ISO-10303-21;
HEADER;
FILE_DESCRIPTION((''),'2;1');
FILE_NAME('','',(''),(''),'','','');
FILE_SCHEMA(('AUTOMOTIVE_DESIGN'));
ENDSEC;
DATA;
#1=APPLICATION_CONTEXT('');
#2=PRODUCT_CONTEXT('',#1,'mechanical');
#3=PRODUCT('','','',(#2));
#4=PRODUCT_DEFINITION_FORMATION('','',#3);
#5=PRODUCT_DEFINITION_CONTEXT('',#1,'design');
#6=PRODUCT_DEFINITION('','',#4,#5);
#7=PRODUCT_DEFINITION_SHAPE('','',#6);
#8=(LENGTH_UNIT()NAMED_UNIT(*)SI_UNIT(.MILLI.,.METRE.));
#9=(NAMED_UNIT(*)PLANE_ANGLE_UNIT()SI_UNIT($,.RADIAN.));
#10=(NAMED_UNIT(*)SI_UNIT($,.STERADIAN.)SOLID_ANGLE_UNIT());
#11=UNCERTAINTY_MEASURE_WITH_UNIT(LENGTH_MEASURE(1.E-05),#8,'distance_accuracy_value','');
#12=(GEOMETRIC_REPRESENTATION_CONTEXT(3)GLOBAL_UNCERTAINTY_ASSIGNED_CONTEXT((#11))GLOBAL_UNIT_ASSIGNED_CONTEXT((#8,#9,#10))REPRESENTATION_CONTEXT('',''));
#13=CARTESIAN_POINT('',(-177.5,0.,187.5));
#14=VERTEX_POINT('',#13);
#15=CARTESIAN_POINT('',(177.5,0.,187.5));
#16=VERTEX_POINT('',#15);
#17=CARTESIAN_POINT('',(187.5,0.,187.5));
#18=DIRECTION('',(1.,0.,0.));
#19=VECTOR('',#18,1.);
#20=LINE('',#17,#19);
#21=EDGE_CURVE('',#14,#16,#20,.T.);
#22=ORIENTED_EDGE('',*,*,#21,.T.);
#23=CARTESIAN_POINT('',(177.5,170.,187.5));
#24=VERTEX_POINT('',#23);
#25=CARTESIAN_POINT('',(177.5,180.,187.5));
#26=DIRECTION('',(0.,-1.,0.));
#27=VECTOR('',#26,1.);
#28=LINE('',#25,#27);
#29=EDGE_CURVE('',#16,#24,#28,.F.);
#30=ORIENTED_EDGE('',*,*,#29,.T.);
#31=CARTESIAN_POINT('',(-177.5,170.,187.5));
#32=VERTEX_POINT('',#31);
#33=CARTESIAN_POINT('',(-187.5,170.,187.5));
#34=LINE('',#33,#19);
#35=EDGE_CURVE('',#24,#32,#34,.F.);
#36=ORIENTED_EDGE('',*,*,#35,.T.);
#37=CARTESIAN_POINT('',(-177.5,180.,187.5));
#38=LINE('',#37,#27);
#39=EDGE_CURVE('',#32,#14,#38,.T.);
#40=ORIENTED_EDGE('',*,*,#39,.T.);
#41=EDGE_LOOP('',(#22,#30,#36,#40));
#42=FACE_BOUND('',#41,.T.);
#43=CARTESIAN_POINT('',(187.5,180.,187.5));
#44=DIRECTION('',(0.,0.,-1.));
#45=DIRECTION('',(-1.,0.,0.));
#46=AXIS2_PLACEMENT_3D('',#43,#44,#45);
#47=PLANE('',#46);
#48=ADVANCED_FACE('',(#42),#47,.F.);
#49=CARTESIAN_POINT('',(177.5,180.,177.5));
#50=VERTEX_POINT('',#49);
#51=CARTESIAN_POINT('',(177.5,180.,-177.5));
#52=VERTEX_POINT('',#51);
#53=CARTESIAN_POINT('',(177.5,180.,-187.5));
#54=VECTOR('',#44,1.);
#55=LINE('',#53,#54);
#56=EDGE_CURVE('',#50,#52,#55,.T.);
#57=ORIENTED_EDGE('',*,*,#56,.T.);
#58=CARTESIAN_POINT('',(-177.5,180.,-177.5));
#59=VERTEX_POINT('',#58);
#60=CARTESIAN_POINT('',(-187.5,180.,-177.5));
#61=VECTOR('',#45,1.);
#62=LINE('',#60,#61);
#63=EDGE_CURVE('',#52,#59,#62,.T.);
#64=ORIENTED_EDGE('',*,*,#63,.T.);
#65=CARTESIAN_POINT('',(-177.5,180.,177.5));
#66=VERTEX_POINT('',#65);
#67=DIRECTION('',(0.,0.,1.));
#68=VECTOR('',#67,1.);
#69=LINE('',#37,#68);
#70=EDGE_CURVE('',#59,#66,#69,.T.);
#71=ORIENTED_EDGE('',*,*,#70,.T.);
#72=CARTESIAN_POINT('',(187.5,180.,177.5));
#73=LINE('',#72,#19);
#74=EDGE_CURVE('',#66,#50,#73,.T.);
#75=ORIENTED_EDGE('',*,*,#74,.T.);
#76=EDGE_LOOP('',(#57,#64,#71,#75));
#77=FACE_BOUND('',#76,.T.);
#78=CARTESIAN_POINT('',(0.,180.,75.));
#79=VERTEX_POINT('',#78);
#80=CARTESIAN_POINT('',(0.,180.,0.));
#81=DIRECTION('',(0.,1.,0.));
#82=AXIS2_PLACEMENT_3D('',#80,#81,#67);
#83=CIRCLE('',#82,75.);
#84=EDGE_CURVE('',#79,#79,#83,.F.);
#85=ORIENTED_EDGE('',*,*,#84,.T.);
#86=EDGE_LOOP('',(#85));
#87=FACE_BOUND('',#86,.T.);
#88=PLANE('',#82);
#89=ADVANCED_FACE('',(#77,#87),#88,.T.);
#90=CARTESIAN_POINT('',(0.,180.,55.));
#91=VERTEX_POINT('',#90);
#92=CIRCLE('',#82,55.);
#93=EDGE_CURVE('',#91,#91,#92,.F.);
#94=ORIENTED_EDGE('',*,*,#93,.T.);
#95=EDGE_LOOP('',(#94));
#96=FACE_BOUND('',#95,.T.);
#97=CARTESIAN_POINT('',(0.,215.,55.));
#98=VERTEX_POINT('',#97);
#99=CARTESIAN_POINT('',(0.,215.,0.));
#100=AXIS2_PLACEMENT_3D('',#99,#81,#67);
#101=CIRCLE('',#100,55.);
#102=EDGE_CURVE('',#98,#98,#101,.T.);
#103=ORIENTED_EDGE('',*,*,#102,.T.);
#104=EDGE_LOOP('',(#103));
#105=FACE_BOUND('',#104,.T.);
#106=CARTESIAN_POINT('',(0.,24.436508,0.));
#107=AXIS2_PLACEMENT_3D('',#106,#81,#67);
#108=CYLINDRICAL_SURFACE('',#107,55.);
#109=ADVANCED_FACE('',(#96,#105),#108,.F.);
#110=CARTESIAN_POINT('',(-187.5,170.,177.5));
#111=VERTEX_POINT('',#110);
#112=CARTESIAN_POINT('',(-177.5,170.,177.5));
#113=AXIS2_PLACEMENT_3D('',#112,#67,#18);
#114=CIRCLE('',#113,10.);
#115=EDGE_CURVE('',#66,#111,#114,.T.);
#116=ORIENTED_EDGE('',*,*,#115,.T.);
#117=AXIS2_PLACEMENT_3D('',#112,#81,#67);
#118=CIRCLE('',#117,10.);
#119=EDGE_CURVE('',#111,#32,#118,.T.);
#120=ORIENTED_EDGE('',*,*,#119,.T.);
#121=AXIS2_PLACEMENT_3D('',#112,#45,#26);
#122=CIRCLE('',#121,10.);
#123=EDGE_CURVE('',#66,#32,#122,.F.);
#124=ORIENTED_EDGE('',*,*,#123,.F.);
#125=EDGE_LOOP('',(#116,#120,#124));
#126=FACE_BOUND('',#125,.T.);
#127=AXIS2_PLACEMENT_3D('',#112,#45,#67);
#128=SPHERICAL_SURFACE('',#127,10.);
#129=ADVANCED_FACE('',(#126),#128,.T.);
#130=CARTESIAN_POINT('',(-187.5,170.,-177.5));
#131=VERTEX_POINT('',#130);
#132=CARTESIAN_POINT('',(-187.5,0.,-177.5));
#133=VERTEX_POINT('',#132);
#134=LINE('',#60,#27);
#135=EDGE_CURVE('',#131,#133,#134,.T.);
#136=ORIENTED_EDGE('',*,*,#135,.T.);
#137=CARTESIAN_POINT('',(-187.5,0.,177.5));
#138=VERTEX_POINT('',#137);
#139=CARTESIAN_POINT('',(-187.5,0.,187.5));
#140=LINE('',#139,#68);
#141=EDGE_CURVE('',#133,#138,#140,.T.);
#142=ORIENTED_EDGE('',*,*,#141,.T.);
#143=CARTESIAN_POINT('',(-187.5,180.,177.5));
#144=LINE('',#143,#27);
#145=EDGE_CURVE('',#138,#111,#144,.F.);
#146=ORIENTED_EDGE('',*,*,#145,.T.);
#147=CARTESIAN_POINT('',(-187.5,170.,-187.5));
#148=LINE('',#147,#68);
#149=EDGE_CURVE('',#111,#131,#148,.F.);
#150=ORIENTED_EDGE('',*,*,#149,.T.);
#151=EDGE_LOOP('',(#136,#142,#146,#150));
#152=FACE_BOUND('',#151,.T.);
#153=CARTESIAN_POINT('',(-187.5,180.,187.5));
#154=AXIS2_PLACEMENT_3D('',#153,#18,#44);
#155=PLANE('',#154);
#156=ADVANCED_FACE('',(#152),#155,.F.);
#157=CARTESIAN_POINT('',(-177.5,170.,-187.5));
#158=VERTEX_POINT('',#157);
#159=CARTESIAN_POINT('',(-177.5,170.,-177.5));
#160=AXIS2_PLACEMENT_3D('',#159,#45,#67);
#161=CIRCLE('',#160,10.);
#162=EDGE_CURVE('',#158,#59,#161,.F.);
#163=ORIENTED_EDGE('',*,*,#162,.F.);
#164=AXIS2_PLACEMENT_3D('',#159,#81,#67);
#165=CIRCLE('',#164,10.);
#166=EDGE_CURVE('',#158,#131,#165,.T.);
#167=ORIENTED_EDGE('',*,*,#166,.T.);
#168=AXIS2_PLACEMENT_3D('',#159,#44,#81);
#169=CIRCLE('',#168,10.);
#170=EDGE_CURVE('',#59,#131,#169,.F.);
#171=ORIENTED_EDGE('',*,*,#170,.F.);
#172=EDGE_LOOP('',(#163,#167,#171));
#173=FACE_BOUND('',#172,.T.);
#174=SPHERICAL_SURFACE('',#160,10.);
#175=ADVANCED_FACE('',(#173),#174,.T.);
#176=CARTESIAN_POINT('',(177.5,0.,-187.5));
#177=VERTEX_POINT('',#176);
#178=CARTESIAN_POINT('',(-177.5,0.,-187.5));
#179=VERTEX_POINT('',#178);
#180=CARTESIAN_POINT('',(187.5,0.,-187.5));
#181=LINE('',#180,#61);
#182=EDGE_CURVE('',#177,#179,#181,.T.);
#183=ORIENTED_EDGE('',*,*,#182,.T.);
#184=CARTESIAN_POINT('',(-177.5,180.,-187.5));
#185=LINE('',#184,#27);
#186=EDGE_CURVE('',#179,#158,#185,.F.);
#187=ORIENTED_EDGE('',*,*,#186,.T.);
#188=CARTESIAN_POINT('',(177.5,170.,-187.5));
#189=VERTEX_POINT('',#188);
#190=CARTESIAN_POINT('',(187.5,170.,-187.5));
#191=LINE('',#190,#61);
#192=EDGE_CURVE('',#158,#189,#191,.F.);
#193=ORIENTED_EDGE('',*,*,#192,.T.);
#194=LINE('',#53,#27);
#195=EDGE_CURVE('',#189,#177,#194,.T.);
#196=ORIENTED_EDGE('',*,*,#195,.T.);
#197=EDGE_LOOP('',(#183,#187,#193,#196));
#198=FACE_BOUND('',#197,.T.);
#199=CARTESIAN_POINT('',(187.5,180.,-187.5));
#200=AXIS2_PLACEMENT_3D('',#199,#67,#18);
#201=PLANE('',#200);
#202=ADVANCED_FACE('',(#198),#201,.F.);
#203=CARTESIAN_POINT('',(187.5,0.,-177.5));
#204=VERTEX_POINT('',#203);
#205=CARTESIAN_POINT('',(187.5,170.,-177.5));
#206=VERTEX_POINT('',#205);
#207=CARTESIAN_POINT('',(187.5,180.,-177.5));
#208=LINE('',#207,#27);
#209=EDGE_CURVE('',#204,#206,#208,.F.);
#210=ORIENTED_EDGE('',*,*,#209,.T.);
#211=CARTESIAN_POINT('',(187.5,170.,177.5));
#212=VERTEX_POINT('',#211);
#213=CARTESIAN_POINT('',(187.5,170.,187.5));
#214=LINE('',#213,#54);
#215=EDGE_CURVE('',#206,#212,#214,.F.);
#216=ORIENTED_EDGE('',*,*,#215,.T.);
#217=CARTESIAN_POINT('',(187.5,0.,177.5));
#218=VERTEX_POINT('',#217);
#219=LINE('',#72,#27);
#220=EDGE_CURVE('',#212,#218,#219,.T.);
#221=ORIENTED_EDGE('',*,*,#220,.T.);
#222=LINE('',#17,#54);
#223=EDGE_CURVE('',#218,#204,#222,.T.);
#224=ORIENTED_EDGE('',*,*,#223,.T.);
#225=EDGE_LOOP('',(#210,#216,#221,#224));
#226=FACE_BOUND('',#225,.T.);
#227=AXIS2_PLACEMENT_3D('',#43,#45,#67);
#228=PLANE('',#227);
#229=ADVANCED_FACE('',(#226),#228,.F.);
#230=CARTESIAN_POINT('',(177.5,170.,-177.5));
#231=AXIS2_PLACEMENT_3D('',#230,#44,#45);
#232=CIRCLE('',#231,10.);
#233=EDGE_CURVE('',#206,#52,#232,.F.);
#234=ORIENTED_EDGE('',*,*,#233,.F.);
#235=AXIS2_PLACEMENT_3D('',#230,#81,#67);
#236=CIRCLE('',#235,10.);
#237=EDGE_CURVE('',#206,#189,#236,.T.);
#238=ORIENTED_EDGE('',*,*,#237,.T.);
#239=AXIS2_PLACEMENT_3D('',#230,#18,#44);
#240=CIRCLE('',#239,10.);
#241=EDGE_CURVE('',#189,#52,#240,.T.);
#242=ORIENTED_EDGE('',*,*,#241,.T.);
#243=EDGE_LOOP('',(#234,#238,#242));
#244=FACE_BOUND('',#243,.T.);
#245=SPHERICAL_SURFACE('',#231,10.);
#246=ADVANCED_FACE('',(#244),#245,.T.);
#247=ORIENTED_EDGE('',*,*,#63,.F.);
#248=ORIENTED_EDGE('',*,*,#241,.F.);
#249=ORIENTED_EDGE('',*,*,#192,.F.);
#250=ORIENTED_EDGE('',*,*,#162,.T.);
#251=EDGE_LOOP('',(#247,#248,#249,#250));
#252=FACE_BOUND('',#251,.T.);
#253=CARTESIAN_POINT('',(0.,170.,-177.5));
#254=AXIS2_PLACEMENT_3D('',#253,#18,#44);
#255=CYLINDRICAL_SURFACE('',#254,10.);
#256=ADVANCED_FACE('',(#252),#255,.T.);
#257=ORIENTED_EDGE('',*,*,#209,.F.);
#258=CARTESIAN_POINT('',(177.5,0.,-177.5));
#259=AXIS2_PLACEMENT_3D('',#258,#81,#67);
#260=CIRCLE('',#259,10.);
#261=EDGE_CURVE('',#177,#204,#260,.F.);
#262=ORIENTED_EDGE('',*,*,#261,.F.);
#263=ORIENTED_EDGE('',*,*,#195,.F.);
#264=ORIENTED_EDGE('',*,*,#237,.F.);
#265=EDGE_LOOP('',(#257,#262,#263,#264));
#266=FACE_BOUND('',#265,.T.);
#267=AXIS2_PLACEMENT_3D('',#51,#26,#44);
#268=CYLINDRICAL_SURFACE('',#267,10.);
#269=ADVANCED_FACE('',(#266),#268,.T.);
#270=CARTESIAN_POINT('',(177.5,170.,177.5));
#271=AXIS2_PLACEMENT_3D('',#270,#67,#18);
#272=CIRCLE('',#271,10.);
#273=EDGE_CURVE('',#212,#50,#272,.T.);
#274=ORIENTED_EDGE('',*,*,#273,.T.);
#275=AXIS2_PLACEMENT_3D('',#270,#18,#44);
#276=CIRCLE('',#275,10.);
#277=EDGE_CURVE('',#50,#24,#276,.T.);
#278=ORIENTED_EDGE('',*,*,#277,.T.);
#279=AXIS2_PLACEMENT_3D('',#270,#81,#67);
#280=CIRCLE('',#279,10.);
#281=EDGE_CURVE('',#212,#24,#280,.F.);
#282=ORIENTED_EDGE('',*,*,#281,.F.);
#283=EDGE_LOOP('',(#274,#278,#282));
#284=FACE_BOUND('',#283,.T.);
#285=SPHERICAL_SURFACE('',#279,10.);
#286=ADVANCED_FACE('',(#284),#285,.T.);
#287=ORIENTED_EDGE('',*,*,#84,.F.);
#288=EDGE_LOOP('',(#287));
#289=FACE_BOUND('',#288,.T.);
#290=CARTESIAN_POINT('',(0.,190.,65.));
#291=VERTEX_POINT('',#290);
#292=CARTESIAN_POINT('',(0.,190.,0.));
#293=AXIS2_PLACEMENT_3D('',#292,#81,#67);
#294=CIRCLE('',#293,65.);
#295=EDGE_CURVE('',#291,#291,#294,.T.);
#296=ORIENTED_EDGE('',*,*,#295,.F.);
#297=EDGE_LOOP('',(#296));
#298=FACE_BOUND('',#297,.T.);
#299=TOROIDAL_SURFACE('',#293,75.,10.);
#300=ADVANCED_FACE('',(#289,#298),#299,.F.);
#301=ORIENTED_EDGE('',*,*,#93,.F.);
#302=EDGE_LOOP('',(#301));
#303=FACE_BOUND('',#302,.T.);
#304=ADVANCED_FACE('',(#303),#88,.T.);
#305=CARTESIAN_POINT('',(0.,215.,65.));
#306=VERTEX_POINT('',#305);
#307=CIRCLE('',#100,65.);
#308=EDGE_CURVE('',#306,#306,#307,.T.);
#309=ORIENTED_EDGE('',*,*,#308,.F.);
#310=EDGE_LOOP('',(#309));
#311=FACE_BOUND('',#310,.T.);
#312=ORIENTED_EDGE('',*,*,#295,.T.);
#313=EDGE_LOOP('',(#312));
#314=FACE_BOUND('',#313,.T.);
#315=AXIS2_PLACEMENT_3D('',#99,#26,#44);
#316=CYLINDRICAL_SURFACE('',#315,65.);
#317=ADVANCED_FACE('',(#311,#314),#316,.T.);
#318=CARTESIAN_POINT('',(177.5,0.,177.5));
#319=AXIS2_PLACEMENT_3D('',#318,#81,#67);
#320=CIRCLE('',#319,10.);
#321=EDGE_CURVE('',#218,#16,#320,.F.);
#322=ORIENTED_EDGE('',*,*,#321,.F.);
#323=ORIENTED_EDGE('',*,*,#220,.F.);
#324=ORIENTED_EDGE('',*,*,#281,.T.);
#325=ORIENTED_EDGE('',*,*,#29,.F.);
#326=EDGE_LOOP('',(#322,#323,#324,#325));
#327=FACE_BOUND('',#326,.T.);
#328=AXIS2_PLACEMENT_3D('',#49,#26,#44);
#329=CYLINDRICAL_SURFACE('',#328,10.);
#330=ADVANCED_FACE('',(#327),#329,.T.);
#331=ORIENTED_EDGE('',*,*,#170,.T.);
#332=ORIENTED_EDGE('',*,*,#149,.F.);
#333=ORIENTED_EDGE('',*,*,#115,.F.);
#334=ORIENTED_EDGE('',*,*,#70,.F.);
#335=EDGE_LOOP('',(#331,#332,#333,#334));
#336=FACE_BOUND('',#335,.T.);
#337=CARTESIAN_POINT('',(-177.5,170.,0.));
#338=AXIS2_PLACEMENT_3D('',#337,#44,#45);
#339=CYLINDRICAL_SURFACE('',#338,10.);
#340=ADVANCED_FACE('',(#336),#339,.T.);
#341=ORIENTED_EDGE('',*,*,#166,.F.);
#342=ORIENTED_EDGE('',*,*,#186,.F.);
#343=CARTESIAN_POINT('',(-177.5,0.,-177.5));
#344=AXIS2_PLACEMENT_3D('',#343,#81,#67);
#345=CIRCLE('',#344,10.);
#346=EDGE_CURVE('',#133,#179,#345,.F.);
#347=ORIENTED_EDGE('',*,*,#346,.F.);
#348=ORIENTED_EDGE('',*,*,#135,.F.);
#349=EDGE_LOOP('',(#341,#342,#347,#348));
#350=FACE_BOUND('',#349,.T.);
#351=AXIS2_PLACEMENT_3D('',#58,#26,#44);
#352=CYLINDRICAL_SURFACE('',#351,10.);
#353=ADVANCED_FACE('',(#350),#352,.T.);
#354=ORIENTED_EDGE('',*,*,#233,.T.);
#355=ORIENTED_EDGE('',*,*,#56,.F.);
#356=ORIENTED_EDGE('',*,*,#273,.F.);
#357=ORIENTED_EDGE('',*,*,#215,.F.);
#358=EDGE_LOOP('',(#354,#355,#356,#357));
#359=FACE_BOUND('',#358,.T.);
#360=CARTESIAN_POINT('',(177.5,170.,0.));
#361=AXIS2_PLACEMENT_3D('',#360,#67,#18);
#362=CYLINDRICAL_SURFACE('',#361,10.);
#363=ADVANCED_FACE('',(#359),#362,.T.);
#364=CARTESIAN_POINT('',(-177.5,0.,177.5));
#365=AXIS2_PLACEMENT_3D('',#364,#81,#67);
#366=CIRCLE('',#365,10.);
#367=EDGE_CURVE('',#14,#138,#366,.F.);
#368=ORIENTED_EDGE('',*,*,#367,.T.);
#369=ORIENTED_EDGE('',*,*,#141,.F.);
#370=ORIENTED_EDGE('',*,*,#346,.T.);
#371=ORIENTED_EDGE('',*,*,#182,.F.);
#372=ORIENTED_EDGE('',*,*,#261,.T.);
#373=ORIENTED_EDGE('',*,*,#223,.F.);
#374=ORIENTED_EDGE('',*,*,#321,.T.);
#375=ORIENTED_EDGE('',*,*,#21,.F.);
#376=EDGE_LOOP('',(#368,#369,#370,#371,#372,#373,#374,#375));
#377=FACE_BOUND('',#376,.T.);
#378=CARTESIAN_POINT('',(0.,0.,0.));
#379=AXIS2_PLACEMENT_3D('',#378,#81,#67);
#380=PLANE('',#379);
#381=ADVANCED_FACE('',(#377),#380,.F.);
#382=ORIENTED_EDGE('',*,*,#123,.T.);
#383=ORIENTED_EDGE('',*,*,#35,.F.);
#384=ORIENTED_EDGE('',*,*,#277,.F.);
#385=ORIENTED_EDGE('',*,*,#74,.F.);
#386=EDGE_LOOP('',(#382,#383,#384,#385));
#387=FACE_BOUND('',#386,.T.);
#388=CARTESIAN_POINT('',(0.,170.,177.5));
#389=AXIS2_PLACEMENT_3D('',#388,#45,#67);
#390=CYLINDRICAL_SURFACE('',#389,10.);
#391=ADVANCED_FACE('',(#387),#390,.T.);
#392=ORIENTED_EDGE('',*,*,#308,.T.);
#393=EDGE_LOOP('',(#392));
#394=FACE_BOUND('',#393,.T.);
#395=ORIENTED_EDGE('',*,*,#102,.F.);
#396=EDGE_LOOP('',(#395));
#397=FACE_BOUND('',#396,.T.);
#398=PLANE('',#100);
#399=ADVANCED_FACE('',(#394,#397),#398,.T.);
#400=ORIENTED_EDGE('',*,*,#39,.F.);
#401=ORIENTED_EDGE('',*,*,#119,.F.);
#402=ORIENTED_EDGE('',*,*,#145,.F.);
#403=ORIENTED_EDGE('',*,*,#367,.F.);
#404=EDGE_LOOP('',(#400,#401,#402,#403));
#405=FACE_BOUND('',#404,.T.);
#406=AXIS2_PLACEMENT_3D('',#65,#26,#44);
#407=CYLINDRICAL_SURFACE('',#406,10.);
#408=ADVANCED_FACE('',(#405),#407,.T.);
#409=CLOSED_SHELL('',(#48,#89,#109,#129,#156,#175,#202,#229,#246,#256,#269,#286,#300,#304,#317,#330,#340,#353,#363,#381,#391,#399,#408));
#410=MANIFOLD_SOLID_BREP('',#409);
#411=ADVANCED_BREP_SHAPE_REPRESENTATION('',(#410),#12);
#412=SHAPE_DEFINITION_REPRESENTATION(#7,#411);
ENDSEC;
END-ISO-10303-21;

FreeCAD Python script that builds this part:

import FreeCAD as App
import Part
import Sketcher
from FreeCAD import Vector


def edges_at(feature, points):
    """Names of the edges that pass closest to the given points."""
    edges = feature.Shape.Edges
    near = lambda p: min(range(len(edges)), key=lambda i: edges[i].distToShape(Part.Vertex(*p))[0])
    return sorted({f"Edge{near(p) + 1}" for p in points})

doc = App.newDocument("Part")
body = doc.addObject("PartDesign::Body", "Body")

# Sketch on XZ plane
sketch1 = body.newObject("Sketcher::SketchObject", "Sketch")
sketch1.AttachmentSupport = (doc.getObject("XZ_Plane"), [""])
sketch1.MapMode = "FlatFace"
sketch1.addGeometry(Part.LineSegment(Vector(-187.5, -187.5, 0), Vector(-187.5, 187.5, 0)), False)
sketch1.addGeometry(Part.LineSegment(Vector(-187.5, 187.5, 0), Vector(187.5, 187.5, 0)), False)
sketch1.addGeometry(Part.LineSegment(Vector(187.5, 187.5, 0), Vector(187.5, -187.5, 0)), False)
sketch1.addGeometry(Part.LineSegment(Vector(187.5, -187.5, 0), Vector(-187.5, -187.5, 0)), False)
sketch1.addConstraint(Sketcher.Constraint("Coincident", 0, 2, 1, 1))
sketch1.addConstraint(Sketcher.Constraint("Coincident", 1, 2, 2, 1))
sketch1.addConstraint(Sketcher.Constraint("Coincident", 2, 2, 3, 1))
sketch1.addConstraint(Sketcher.Constraint("Coincident", 3, 2, 0, 1))
sketch1.addConstraint(Sketcher.Constraint("Vertical", 0))
sketch1.addConstraint(Sketcher.Constraint("Horizontal", 1))
sketch1.addConstraint(Sketcher.Constraint("Vertical", 2))
sketch1.addConstraint(Sketcher.Constraint("Horizontal", 3))
sketch1.addConstraint(Sketcher.Constraint("Symmetric", 0, 2, 2, 2, -1, 1))
sketch1.addConstraint(Sketcher.Constraint("Equal", 3, 0))
sketch1.addConstraint(Sketcher.Constraint("DistanceX", 1, 1, 1, 2, 375.0))
pad1 = body.newObject("PartDesign::Pad", "Pad")
pad1.Profile = sketch1
pad1.Length = 180
pad1.Reversed = True

# Sketch on XZ plane
sketch2 = body.newObject("Sketcher::SketchObject", "Sketch001")
sketch2.AttachmentSupport = (doc.getObject("XZ_Plane"), [""])
sketch2.MapMode = "FlatFace"
sketch2.AttachmentOffset = App.Placement(Vector(0, 0, -180), App.Rotation())
sketch2.addGeometry(Part.Circle(Vector(0, 0, 0), Vector(0, 0, 1), 65), False)
sketch2.addConstraint(Sketcher.Constraint("Coincident", 0, 3, -1, 1))
sketch2.addConstraint(Sketcher.Constraint("Diameter", 0, 130.0))
pad2 = body.newObject("PartDesign::Pad", "Pad001")
pad2.Profile = sketch2
pad2.Length = 35
pad2.Reversed = True

# Sketch on XZ plane
sketch3 = body.newObject("Sketcher::SketchObject", "Sketch002")
sketch3.AttachmentSupport = (doc.getObject("XZ_Plane"), [""])
sketch3.MapMode = "FlatFace"
sketch3.AttachmentOffset = App.Placement(Vector(0, 0, -215), App.Rotation())
sketch3.addGeometry(Part.Circle(Vector(0, 0, 0), Vector(0, 0, 1), 55), False)
sketch3.addConstraint(Sketcher.Constraint("Coincident", 0, 3, -1, 1))
sketch3.addConstraint(Sketcher.Constraint("Diameter", 0, 110.0))
pocket1 = body.newObject("PartDesign::Pocket", "Pocket")
pocket1.Profile = sketch3
pocket1.Length = 35
pocket1.Reversed = True
doc.recompute()

fillet = body.newObject("PartDesign::Fillet", "Fillet")
fillet.Base = (pocket1, edges_at(pocket1, [(0, 180, -65)]))
fillet.Radius = 10
doc.recompute()

fillet2 = body.newObject("PartDesign::Fillet", "Fillet001")
fillet2.Base = (fillet, edges_at(fillet, [
    (187.5, 180, 0),
    (0, 180, -187.5),
    (-187.5, 180, 0),
    (-187.5, 90, -187.5),
    (187.5, 90, -187.5),
    (187.5, 90, 187.5),
    (-187.5, 90, 187.5),
    (0, 180, 187.5),
]))
fillet2.Radius = 10

doc.recompute()
